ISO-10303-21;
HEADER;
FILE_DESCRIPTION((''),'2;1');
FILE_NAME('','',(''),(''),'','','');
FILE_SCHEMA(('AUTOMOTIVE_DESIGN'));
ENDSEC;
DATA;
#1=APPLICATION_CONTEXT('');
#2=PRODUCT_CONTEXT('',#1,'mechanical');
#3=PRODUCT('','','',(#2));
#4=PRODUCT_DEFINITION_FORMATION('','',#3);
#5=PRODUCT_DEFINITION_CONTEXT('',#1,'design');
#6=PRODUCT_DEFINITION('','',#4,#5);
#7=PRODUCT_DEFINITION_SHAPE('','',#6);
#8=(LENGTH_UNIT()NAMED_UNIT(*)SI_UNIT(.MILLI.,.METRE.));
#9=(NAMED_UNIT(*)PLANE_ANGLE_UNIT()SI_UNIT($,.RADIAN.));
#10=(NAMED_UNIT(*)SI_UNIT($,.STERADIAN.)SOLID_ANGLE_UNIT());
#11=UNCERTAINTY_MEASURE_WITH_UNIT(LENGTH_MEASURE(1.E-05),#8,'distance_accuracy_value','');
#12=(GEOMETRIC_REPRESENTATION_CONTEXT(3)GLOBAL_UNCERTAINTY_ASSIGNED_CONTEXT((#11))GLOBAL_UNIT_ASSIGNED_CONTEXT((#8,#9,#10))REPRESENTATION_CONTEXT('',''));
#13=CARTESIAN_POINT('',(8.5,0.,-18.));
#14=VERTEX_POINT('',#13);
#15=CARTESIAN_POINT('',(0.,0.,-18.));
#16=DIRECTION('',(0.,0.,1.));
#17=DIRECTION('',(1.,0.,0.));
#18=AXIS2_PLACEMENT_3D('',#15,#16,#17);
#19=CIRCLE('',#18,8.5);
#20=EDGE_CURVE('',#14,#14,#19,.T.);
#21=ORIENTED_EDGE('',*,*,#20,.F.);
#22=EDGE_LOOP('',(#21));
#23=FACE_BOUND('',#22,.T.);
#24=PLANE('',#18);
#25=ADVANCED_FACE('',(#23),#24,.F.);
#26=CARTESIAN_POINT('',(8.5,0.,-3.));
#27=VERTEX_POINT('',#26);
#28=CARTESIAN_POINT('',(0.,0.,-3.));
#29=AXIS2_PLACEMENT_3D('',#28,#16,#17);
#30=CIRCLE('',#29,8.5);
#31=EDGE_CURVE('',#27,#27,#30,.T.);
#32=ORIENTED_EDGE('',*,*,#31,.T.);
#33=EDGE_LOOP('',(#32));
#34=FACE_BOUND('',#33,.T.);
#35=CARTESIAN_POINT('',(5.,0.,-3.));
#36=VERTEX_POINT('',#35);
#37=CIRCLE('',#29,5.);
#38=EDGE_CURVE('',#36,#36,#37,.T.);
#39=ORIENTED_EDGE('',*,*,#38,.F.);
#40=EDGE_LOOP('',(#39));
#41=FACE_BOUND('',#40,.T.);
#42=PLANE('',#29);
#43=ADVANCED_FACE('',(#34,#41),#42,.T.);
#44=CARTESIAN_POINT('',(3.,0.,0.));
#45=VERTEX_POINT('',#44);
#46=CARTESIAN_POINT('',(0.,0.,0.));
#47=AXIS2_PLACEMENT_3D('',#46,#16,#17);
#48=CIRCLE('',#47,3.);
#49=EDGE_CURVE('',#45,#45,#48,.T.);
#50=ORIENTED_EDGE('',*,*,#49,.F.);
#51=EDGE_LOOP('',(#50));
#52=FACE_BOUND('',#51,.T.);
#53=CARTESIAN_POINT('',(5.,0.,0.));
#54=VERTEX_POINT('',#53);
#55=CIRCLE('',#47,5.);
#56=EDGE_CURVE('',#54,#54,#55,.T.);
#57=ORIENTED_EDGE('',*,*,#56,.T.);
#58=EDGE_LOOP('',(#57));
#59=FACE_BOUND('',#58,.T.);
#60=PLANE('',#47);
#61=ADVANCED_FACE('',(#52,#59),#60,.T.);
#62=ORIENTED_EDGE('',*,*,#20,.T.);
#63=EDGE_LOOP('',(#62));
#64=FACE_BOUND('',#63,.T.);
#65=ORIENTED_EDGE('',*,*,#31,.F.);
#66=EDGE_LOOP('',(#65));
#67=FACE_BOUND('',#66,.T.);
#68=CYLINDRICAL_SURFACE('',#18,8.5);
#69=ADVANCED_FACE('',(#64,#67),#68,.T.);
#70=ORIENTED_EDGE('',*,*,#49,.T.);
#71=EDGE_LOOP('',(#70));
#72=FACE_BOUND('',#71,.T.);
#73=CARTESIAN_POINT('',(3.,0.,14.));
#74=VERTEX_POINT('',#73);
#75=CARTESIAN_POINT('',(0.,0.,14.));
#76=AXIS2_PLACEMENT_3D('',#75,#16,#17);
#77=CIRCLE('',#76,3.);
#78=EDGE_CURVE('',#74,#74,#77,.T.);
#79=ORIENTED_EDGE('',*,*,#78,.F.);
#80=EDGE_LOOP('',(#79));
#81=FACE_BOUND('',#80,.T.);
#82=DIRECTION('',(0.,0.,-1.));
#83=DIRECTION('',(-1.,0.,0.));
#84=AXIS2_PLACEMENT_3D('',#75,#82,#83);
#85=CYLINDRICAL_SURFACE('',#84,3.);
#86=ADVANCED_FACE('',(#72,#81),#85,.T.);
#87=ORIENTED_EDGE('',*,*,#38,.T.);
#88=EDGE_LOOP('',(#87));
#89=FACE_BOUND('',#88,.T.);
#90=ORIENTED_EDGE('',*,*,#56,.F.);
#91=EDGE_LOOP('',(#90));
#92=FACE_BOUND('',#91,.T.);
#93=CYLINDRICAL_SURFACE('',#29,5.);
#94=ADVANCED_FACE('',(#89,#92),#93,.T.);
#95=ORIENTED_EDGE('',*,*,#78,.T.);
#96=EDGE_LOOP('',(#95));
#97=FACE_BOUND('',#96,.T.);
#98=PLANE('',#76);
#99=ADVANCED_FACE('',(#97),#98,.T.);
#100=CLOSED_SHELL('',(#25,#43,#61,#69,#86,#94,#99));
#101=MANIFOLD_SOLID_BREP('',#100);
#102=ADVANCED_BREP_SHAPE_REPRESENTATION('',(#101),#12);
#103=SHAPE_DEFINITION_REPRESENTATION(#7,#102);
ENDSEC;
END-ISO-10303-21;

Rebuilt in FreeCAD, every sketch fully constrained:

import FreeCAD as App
import Part
import Sketcher

doc = App.newDocument("Part")
params = doc.addObject("Spreadsheet::Sheet", "Params")
for row, (alias, value) in enumerate([
    ("sketch1_diameter", "6 mm"),
    ("pad1_length", "14 mm"),
    ("sketch2_diameter", "10 mm"),
    ("pad2_length", "3 mm"),
    ("sketch3_diameter", "17 mm"),
    ("pad3_length", "15 mm"),
], start=1):
    params.set(f"A{row}", alias)
    params.set(f"B{row}", "=" + value)
    params.setAlias(f"B{row}", alias)

body = doc.addObject("PartDesign::Body", "Body")

# Sketch on XY plane
sketch1 = body.newObject("Sketcher::SketchObject", "Sketch")
sketch1.AttachmentSupport = (doc.getObject("XY_Plane"), [""])
sketch1.MapMode = "FlatFace"
sketch1.addGeometry(Part.Circle(App.Vector(0, 0, 0), App.Vector(0, 0, 1), 3), False)
sketch1.addConstraint(Sketcher.Constraint("Coincident", 0, 3, -1, 1))
sketch1.addConstraint(Sketcher.Constraint("Diameter", 0, 6.0))
sketch1.setExpression("Constraints[1]", "Params.sketch1_diameter")
pad1 = body.newObject("PartDesign::Pad", "Pad")
pad1.Profile = sketch1
pad1.setExpression("Length", "Params.pad1_length")

# Sketch on XY plane
sketch2 = body.newObject("Sketcher::SketchObject", "Sketch001")
sketch2.AttachmentSupport = (doc.getObject("XY_Plane"), [""])
sketch2.MapMode = "FlatFace"
sketch2.addGeometry(Part.Circle(App.Vector(0, 0, 0), App.Vector(0, 0, 1), 5), False)
sketch2.addConstraint(Sketcher.Constraint("Coincident", 0, 3, -1, 1))
sketch2.addConstraint(Sketcher.Constraint("Diameter", 0, 10.0))
sketch2.setExpression("Constraints[1]", "Params.sketch2_diameter")
pad2 = body.newObject("PartDesign::Pad", "Pad001")
pad2.Profile = sketch2
pad2.setExpression("Length", "Params.pad2_length")
pad2.Reversed = True

# Sketch on XY plane
sketch3 = body.newObject("Sketcher::SketchObject", "Sketch002")
sketch3.AttachmentSupport = (doc.getObject("XY_Plane"), [""])
sketch3.MapMode = "FlatFace"
sketch3.AttachmentOffset = App.Placement(App.Vector(0, 0, -3), App.Rotation())
sketch3.addGeometry(Part.Circle(App.Vector(0, 0, 0), App.Vector(0, 0, 1), 8), False)
sketch3.addConstraint(Sketcher.Constraint("Coincident", 0, 3, -1, 1))
sketch3.addConstraint(Sketcher.Constraint("Diameter", 0, 17.0))
sketch3.setExpression("Constraints[1]", "Params.sketch3_diameter")
pad3 = body.newObject("PartDesign::Pad", "Pad002")
pad3.Profile = sketch3
pad3.setExpression("Length", "Params.pad3_length")
pad3.Reversed = True

doc.recompute()
